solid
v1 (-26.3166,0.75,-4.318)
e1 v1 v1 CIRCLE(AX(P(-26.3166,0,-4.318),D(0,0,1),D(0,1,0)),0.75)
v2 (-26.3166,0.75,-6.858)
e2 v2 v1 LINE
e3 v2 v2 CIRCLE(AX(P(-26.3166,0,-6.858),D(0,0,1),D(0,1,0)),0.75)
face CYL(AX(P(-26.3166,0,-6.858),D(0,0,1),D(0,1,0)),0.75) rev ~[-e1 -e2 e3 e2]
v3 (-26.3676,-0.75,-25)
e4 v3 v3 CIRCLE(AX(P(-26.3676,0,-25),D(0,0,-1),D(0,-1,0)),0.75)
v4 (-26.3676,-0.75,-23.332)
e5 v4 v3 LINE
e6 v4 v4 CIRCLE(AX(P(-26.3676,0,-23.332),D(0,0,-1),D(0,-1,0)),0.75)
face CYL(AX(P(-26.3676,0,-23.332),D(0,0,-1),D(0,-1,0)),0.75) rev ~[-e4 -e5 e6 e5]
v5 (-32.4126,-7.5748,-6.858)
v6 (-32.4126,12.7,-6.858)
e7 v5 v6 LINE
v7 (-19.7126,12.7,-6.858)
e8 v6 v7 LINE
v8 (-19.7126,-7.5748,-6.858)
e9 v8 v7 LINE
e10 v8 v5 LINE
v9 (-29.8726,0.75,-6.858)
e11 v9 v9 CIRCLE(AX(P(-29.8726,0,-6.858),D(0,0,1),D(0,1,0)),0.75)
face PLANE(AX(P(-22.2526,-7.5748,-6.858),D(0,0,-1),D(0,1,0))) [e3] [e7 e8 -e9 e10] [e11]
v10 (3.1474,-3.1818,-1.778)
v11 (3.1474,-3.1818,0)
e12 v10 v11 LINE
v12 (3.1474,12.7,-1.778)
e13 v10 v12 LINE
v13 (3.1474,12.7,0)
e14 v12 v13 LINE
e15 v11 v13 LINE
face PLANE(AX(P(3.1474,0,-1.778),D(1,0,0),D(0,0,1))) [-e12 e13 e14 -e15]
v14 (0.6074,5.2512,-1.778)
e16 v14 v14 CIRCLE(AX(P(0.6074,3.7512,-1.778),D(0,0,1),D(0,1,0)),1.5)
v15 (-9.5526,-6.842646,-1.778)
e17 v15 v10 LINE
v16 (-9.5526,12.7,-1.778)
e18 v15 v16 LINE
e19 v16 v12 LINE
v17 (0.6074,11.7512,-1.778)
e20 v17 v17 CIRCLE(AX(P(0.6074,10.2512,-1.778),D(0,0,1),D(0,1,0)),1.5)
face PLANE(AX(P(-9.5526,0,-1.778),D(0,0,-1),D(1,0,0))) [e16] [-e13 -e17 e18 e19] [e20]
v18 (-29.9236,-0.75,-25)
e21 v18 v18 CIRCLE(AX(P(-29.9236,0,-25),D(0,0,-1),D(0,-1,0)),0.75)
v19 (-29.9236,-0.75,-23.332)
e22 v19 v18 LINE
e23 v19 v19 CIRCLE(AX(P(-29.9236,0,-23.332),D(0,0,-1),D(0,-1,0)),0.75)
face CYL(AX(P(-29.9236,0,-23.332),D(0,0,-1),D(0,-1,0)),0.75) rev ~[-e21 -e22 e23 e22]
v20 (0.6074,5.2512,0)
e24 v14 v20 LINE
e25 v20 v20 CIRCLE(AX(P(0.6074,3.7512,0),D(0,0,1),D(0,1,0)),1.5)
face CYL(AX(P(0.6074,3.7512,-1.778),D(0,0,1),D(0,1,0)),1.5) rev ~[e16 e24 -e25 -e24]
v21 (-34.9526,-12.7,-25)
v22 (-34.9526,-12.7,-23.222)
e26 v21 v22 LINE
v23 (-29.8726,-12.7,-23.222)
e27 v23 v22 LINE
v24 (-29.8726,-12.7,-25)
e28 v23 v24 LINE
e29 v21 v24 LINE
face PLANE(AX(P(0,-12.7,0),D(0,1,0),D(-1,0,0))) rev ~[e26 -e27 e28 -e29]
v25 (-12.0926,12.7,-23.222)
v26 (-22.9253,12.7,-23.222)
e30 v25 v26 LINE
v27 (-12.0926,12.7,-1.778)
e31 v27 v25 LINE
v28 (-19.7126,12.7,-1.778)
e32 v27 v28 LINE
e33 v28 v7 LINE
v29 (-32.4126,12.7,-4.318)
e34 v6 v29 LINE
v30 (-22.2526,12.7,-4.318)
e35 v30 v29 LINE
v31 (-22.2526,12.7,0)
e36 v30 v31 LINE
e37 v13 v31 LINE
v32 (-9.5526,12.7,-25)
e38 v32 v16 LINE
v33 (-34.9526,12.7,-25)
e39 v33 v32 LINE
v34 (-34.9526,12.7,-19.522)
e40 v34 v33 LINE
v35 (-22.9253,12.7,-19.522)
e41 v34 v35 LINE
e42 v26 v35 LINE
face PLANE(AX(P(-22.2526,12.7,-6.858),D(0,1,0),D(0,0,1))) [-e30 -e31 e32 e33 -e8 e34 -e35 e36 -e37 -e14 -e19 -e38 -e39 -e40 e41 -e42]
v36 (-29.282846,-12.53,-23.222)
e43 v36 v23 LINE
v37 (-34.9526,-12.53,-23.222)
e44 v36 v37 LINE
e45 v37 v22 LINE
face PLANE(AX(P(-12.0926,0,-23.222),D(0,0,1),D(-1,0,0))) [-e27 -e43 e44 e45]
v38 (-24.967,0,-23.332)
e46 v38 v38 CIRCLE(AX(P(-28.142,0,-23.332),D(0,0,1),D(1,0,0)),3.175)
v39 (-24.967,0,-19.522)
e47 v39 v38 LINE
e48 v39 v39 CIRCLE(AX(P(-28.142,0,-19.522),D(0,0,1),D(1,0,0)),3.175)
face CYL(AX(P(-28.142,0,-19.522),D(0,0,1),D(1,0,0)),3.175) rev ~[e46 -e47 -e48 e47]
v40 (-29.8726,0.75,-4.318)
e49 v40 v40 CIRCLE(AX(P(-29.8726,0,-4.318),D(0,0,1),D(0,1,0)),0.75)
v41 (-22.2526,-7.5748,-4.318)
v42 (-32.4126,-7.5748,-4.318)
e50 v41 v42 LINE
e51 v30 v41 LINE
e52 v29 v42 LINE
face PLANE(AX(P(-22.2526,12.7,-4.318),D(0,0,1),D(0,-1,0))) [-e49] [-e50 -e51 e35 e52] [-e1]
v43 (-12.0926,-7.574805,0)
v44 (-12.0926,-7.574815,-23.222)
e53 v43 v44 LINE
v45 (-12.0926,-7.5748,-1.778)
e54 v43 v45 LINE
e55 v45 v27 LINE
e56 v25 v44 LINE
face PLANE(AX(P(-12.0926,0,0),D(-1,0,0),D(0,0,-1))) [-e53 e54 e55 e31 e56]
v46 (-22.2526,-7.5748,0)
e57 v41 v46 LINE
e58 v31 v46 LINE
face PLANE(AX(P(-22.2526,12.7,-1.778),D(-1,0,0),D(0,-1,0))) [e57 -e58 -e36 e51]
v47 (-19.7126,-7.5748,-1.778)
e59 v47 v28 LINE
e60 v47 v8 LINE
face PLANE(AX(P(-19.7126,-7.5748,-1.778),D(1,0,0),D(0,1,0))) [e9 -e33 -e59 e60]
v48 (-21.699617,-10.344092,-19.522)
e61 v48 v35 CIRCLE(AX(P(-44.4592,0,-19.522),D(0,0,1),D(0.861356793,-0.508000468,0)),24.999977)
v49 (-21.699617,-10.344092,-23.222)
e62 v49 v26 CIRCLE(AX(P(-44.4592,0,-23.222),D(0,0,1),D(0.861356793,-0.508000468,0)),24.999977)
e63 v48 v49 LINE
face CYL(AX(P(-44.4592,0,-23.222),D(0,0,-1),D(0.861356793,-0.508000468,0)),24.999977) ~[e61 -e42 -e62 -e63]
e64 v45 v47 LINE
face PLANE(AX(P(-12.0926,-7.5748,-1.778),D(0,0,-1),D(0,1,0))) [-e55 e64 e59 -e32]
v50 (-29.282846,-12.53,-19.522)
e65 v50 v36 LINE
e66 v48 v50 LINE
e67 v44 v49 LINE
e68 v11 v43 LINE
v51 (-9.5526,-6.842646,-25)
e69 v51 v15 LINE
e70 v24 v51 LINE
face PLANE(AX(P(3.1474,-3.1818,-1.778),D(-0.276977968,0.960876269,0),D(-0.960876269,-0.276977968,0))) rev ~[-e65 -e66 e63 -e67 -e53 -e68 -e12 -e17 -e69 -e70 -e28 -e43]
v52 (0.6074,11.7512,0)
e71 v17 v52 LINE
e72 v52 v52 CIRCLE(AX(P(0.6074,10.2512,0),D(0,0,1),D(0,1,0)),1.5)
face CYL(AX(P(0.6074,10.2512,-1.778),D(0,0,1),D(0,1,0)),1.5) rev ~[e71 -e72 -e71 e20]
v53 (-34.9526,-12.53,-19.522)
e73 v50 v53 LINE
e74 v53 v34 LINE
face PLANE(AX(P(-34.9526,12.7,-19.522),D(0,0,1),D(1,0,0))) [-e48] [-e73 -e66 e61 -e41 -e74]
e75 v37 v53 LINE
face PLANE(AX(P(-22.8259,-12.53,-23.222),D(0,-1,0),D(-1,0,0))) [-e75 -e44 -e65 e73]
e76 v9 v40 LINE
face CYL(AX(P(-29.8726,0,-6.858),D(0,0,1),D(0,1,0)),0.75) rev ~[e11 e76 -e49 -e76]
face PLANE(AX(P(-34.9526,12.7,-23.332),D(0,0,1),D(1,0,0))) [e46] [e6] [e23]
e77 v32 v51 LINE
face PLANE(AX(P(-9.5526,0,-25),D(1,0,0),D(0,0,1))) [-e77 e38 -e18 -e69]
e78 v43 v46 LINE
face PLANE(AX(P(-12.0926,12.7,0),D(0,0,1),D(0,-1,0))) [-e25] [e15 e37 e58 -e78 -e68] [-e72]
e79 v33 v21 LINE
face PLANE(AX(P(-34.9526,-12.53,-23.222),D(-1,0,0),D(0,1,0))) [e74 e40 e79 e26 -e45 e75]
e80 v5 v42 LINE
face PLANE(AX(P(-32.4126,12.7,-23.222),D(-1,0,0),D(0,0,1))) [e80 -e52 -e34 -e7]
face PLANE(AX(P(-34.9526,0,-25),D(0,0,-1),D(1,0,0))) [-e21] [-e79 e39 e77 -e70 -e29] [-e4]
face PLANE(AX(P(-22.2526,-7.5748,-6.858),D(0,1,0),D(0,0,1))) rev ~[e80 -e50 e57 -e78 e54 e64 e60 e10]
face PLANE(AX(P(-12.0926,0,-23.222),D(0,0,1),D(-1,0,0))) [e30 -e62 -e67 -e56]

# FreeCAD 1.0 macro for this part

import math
import FreeCAD as App
import Part
import Sketcher
from FreeCAD import Vector
Q = App.Units.Quantity

doc = App.newDocument("Part")
body = doc.addObject("PartDesign::Body", "Body")

# Sketch on XZ plane
sketch1 = body.newObject("Sketcher::SketchObject", "Sketch")
sketch1.AttachmentSupport = (doc.getObject("XZ_Plane"), [""])
sketch1.MapMode = "FlatFace"
sketch1.addGeometry([
    Part.LineSegment(Vector(-12.1, 0, 0), Vector(3.1, 0, 0)),  # 0
    Part.LineSegment(Vector(3.1, 0, 0), Vector(3.1, -1.8, 0)),  # 1
    Part.LineSegment(Vector(3.1, -1.8, 0), Vector(-9.6, -1.8, 0)),  # 2
    Part.LineSegment(Vector(-9.6, -1.8, 0), Vector(-9.6, -25, 0)),  # 3
    Part.LineSegment(Vector(-9.6, -25, 0), Vector(-35, -25, 0)),  # 4
    Part.LineSegment(Vector(-35, -25, 0), Vector(-35, -23.2, 0)),  # 5
    Part.LineSegment(Vector(-35, -23.2, 0), Vector(-12.1, -23.2, 0)),  # 6
    Part.LineSegment(Vector(-12.1, -23.2, 0), Vector(-12.1, 0, 0)),  # 7
], False)
sketch1.addConstraint([
    Sketcher.Constraint("Coincident", 0, 2, 1, 1),
    Sketcher.Constraint("Coincident", 1, 2, 2, 1),
    Sketcher.Constraint("Coincident", 2, 2, 3, 1),
    Sketcher.Constraint("Coincident", 3, 2, 4, 1),
    Sketcher.Constraint("Coincident", 4, 2, 5, 1),
    Sketcher.Constraint("Coincident", 5, 2, 6, 1),
    Sketcher.Constraint("Coincident", 6, 2, 7, 1),
    Sketcher.Constraint("Coincident", 7, 2, 0, 1),
    Sketcher.Constraint("Horizontal", 0),
    Sketcher.Constraint("Vertical", 1),
    Sketcher.Constraint("Horizontal", 2),
    Sketcher.Constraint("Vertical", 3),
    Sketcher.Constraint("Horizontal", 4),
    Sketcher.Constraint("Vertical", 5),
    Sketcher.Constraint("Horizontal", 6),
    Sketcher.Constraint("Vertical", 7),
    Sketcher.Constraint("PointOnObject", 0, 2, -1),
    Sketcher.Constraint("Equal", 1, 5),
    Sketcher.Constraint("DistanceX", 4, 2, 4, 1, Q("1 in")),
    Sketcher.Constraint("DistanceX", 0, 1, 0, 2, Q("0.6 in")),
    Sketcher.Constraint("DistanceY", 1, 2, 1, 1, Q("0.07 in")),
    Sketcher.Constraint("DistanceX", 6, 2, 3, 2, Q("0.1 in")),
    Sketcher.Constraint("DistanceY", 3, 2, -1, 1, Q("25 mm")),
    Sketcher.Constraint("DistanceX", -1, 1, 0, 2, Q("3.1474 mm")),
])
pad1 = body.newObject("PartDesign::Pad", "Pad")
pad1.Profile = sketch1
pad1.Length = Q("1 in")
pad1.Midplane = True

# Sketch on XY plane
sketch2 = body.newObject("Sketcher::SketchObject", "Sketch001")
sketch2.AttachmentSupport = (doc.getObject("XY_Plane"), [""])
sketch2.MapMode = "FlatFace"
sketch2.AttachmentOffset = App.Placement(Vector(0, 0, -23.222), App.Rotation())
sketch2.addGeometry([
    Part.LineSegment(Vector(-35, -13, 0), Vector(-23, -13, 0)),
    Part.ArcOfCircle(Part.Circle(Vector(-44, 0, 0), Vector(0, 0, 1), 25), math.radians(-30), math.radians(31)),
    Part.LineSegment(Vector(-23, 13, 0), Vector(-35, 13, 0)),
    Part.LineSegment(Vector(-35, 13, 0), Vector(-35, -13, 0)),
], False)
sketch2.addConstraint([
    Sketcher.Constraint("Coincident", 0, 2, 1, 1),
    Sketcher.Constraint("Coincident", 1, 2, 2, 1),
    Sketcher.Constraint("Coincident", 2, 2, 3, 1),
    Sketcher.Constraint("Coincident", 3, 2, 0, 1),
    Sketcher.Constraint("Horizontal", 0),
    Sketcher.Constraint("Horizontal", 2),
    Sketcher.Constraint("Vertical", 3),
    Sketcher.Constraint("PointOnObject", 1, 3, -1),
    Sketcher.Constraint("Radius", 1, Q("25 mm")),
    Sketcher.Constraint("DistanceY", -1, 1, 1, 2, Q("0.5 in")),
    Sketcher.Constraint("DistanceY", 3, 2, 3, 1, Q("0.9933 in")),
    Sketcher.Constraint("DistanceX", 0, 1, 0, 2, Q("12.1267 mm")),
    Sketcher.Constraint("DistanceX", 1, 3, -1, 1, Q("44.4592 mm")),
])
pad2 = body.newObject("PartDesign::Pad", "Pad001")
pad2.Profile = sketch2
pad2.Length = 3.7

# Sketch on XY plane
sketch3 = body.newObject("Sketcher::SketchObject", "Sketch002")
sketch3.AttachmentSupport = (doc.getObject("XY_Plane"), [""])
sketch3.MapMode = "FlatFace"
sketch3.AttachmentOffset = App.Placement(Vector(0, 0, -0.07 * 25.4), App.Rotation())
sketch3.addGeometry([
    Part.LineSegment(Vector(3, -3, 0), Vector(3, -13, 0)),
    Part.LineSegment(Vector(3, -13, 0), Vector(-30, -13, 0)),
    Part.LineSegment(Vector(-30, -13, 0), Vector(3, -3, 0)),
], False)
sketch3.addConstraint([
    Sketcher.Constraint("Coincident", 0, 2, 1, 1),
    Sketcher.Constraint("Coincident", 1, 2, 2, 1),
    Sketcher.Constraint("Coincident", 2, 2, 0, 1),
    Sketcher.Constraint("Vertical", 0),
    Sketcher.Constraint("Horizontal", 1),
    Sketcher.Constraint("DistanceX", 1, 2, 1, 1, Q("1.3 in")),
    Sketcher.Constraint("DistanceY", 0, 2, -1, 1, Q("0.5 in")),
    Sketcher.Constraint("Angle", 2, Q("16.08 deg")),
    Sketcher.Constraint("DistanceX", -1, 1, 0, 2, Q("3.1474 mm")),
])
pocket1 = body.newObject("PartDesign::Pocket", "Pocket")
pocket1.Profile = sketch3
pocket1.Length = Q("3 in")
pocket1.Midplane = True

# Sketch on XY plane
sketch4 = body.newObject("Sketcher::SketchObject", "Sketch003")
sketch4.AttachmentSupport = (doc.getObject("XY_Plane"), [""])
sketch4.MapMode = "FlatFace"
sketch4.AttachmentOffset = App.Placement(Vector(0, 0, -0.07 * 25.4), App.Rotation())
sketch4.addGeometry([
    Part.Circle(Vector(0.6, 3.8, 0), Vector(0, 0, 1), 1.5),
    Part.Circle(Vector(0.6, 10.3, 0), Vector(0, 0, 1), 1.5),
], False)
sketch4.addConstraint([
    Sketcher.Constraint("Equal", 0, 1),
    Sketcher.Constraint("Vertical", 0, 3, 1, 3),
    Sketcher.Constraint("Diameter", 0, Q("0.1181 in")),
    Sketcher.Constraint("DistanceY", -1, 1, 1, 3, Q("0.4036 in")),
    Sketcher.Constraint("DistanceY", 0, 3, 1, 3, Q("0.2559 in")),
    Sketcher.Constraint("DistanceX", -1, 1, 0, 3, Q("0.6074 mm")),
])
doc.recompute()
hole = body.newObject("PartDesign::Hole", "Hole")
hole.Profile = sketch4
hole.ThreadType = "None"
hole.Diameter = Q("0.1181102 in")
hole.DepthType = "ThroughAll"
hole.Reversed = True

# Sketch on XY plane
sketch5 = body.newObject("Sketcher::SketchObject", "Sketch004")
sketch5.AttachmentSupport = (doc.getObject("XY_Plane"), [""])
sketch5.MapMode = "FlatFace"
sketch5.AttachmentOffset = App.Placement(Vector(0, 0, -19.522), App.Rotation())
sketch5.addGeometry(Part.Circle(Vector(-28.1, 0, 0), Vector(0, 0, 1), 3.2), False)
sketch5.addConstraint([
    Sketcher.Constraint("PointOnObject", 0, 3, -1),
    Sketcher.Constraint("Diameter", 0, Q("0.25 in")),
    Sketcher.Constraint("DistanceX", 0, 3, -1, 1, Q("28.142 mm")),
])
pocket2 = body.newObject("PartDesign::Pocket", "Pocket001")
pocket2.Profile = sketch5
pocket2.Length = Q("0.15 in")

# Sketch on XY plane
sketch6 = body.newObject("Sketcher::SketchObject", "Sketch005")
sketch6.AttachmentSupport = (doc.getObject("XY_Plane"), [""])
sketch6.MapMode = "FlatFace"
sketch6.AttachmentOffset = App.Placement(Vector(0, 0, -23.332), App.Rotation())
sketch6.addGeometry([
    Part.Circle(Vector(-29.9, 0, 0), Vector(0, 0, 1), 0.8),
    Part.Circle(Vector(-26.4, 0, 0), Vector(0, 0, 1), 0.8),
], False)
sketch6.addConstraint([
    Sketcher.Constraint("Equal", 0, 1),
    Sketcher.Constraint("PointOnObject", 0, 3, -1),
    Sketcher.Constraint("PointOnObject", 1, 3, -1),
    Sketcher.Constraint("Diameter", 0, Q("1.5 mm")),
    Sketcher.Constraint("DistanceX", 0, 3, 1, 3, Q("0.14 in")),
    Sketcher.Constraint("DistanceX", 0, 3, -1, 1, Q("1.1781 in")),
])
doc.recompute()
hole2 = body.newObject("PartDesign::Hole", "Hole001")
hole2.Profile = sketch6
hole2.ThreadType = "None"
hole2.Diameter = 1.5
hole2.DepthType = "ThroughAll"

# Sketch on YZ plane
sketch7 = body.newObject("Sketcher::SketchObject", "Sketch006")
sketch7.AttachmentSupport = (doc.getObject("YZ_Plane"), [""])
sketch7.MapMode = "FlatFace"
sketch7.AttachmentOffset = App.Placement(Vector(0, 0, -12.0926), App.Rotation())
sketch7.addGeometry([
    Part.LineSegment(Vector(-7.6, -1.8, 0), Vector(-7.6, 0, 0)),
    Part.LineSegment(Vector(-7.6, 0, 0), Vector(12.7, 0, 0)),
    Part.LineSegment(Vector(12.7, 0, 0), Vector(12.7, -1.8, 0)),
    Part.LineSegment(Vector(12.7, -1.8, 0), Vector(-7.6, -1.8, 0)),
], False)
sketch7.addConstraint([
    Sketcher.Constraint("Coincident", 0, 2, 1, 1),
    Sketcher.Constraint("Coincident", 1, 2, 2, 1),
    Sketcher.Constraint("Coincident", 2, 2, 3, 1),
    Sketcher.Constraint("Coincident", 3, 2, 0, 1),
    Sketcher.Constraint("Vertical", 0),
    Sketcher.Constraint("Horizontal", 1),
    Sketcher.Constraint("Vertical", 2),
    Sketcher.Constraint("Horizontal", 3),
    Sketcher.Constraint("PointOnObject", 0, 2, -1),
    Sketcher.Constraint("DistanceY", 0, 1, 0, 2, Q("0.07 in")),
    Sketcher.Constraint("DistanceX", -1, 1, 1, 2, Q("0.5 in")),
    Sketcher.Constraint("DistanceX", 1, 1, 1, 2, Q("20.2748 mm")),
])
pad3 = body.newObject("PartDesign::Pad", "Pad002")
pad3.Profile = sketch7
pad3.Length = Q("0.4 in")
pad3.Reversed = True

# Sketch on XY plane
sketch8 = body.newObject("Sketcher::SketchObject", "Sketch007")
sketch8.AttachmentSupport = (doc.getObject("XY_Plane"), [""])
sketch8.MapMode = "FlatFace"
sketch8.AttachmentOffset = App.Placement(Vector(0, 0, -0.07 * 25.4), App.Rotation())
sketch8.addGeometry([
    Part.LineSegment(Vector(-22.3, 12.7, 0), Vector(-19.7, 12.7, 0)),
    Part.LineSegment(Vector(-19.7, 12.7, 0), Vector(-19.7, -7.6, 0)),
    Part.LineSegment(Vector(-19.7, -7.6, 0), Vector(-22.3, -7.6, 0)),
    Part.LineSegment(Vector(-22.3, -7.6, 0), Vector(-22.3, 12.7, 0)),
], False)
sketch8.addConstraint([
    Sketcher.Constraint("Coincident", 0, 2, 1, 1),
    Sketcher.Constraint("Coincident", 1, 2, 2, 1),
    Sketcher.Constraint("Coincident", 2, 2, 3, 1),
    Sketcher.Constraint("Coincident", 3, 2, 0, 1),
    Sketcher.Constraint("Horizontal", 0),
    Sketcher.Constraint("Vertical", 1),
    Sketcher.Constraint("Horizontal", 2),
    Sketcher.Constraint("Vertical", 3),
    Sketcher.Constraint("DistanceX", 0, 1, 0, 2, Q("0.1 in")),
    Sketcher.Constraint("DistanceY", -1, 1, 0, 2, Q("0.5 in")),
    Sketcher.Constraint("DistanceY", 1, 2, 1, 1, Q("20.2748 mm")),
    Sketcher.Constraint("DistanceX", 0, 2, -1, 1, Q("19.7126 mm")),
])
pad4 = body.newObject("PartDesign::Pad", "Pad003")
pad4.Profile = sketch8
pad4.Length = Q("0.2 in")
pad4.Reversed = True

# Sketch on YZ plane
sketch9 = body.newObject("Sketcher::SketchObject", "Sketch008")
sketch9.AttachmentSupport = (doc.getObject("YZ_Plane"), [""])
sketch9.MapMode = "FlatFace"
sketch9.AttachmentOffset = App.Placement(Vector(0, 0, -22.2526), App.Rotation())
sketch9.addGeometry([
    Part.LineSegment(Vector(12.7, -6.9, 0), Vector(-7.6, -6.9, 0)),
    Part.LineSegment(Vector(-7.6, -6.9, 0), Vector(-7.6, -4.3, 0)),
    Part.LineSegment(Vector(-7.6, -4.3, 0), Vector(12.7, -4.3, 0)),
    Part.LineSegment(Vector(12.7, -4.3, 0), Vector(12.7, -6.9, 0)),
], False)
sketch9.addConstraint([
    Sketcher.Constraint("Coincident", 0, 2, 1, 1),
    Sketcher.Constraint("Coincident", 1, 2, 2, 1),
    Sketcher.Constraint("Coincident", 2, 2, 3, 1),
    Sketcher.Constraint("Coincident", 3, 2, 0, 1),
    Sketcher.Constraint("Horizontal", 0),
    Sketcher.Constraint("Vertical", 1),
    Sketcher.Constraint("Horizontal", 2),
    Sketcher.Constraint("Vertical", 3),
    Sketcher.Constraint("DistanceY", 1, 1, 1, 2, Q("0.1 in")),
    Sketcher.Constraint("DistanceX", -1, 1, 2, 2, Q("0.5 in")),
    Sketcher.Constraint("DistanceY", 0, 2, -1, 1, Q("0.27 in")),
    Sketcher.Constraint("DistanceX", 0, 2, 0, 1, Q("20.2748 mm")),
])
pad5 = body.newObject("PartDesign::Pad", "Pad004")
pad5.Profile = sketch9
pad5.Length = Q("0.4 in")
pad5.Reversed = True

# Sketch on XY plane
sketch10 = body.newObject("Sketcher::SketchObject", "Sketch009")
sketch10.AttachmentSupport = (doc.getObject("XY_Plane"), [""])
sketch10.MapMode = "FlatFace"
sketch10.AttachmentOffset = App.Placement(Vector(0, 0, -0.27 * 25.4), App.Rotation())
sketch10.addGeometry([
    Part.Circle(Vector(-26.3, 0, 0), Vector(0, 0, 1), 0.8),
    Part.Circle(Vector(-29.9, 0, 0), Vector(0, 0, 1), 0.8),
], False)
sketch10.addConstraint([
    Sketcher.Constraint("Equal", 0, 1),
    Sketcher.Constraint("PointOnObject", 0, 3, -1),
    Sketcher.Constraint("PointOnObject", 1, 3, -1),
    Sketcher.Constraint("Diameter", 0, Q("1.5 mm")),
    Sketcher.Constraint("DistanceX", 1, 3, 0, 3, Q("0.14 in")),
    Sketcher.Constraint("DistanceX", 0, 3, -1, 1, Q("26.3166 mm")),
])
doc.recompute()
hole3 = body.newObject("PartDesign::Hole", "Hole002")
hole3.Profile = sketch10
hole3.ThreadType = "None"
hole3.Diameter = 1.5
hole3.DepthType = "ThroughAll"
hole3.Reversed = True

doc.recompute()
